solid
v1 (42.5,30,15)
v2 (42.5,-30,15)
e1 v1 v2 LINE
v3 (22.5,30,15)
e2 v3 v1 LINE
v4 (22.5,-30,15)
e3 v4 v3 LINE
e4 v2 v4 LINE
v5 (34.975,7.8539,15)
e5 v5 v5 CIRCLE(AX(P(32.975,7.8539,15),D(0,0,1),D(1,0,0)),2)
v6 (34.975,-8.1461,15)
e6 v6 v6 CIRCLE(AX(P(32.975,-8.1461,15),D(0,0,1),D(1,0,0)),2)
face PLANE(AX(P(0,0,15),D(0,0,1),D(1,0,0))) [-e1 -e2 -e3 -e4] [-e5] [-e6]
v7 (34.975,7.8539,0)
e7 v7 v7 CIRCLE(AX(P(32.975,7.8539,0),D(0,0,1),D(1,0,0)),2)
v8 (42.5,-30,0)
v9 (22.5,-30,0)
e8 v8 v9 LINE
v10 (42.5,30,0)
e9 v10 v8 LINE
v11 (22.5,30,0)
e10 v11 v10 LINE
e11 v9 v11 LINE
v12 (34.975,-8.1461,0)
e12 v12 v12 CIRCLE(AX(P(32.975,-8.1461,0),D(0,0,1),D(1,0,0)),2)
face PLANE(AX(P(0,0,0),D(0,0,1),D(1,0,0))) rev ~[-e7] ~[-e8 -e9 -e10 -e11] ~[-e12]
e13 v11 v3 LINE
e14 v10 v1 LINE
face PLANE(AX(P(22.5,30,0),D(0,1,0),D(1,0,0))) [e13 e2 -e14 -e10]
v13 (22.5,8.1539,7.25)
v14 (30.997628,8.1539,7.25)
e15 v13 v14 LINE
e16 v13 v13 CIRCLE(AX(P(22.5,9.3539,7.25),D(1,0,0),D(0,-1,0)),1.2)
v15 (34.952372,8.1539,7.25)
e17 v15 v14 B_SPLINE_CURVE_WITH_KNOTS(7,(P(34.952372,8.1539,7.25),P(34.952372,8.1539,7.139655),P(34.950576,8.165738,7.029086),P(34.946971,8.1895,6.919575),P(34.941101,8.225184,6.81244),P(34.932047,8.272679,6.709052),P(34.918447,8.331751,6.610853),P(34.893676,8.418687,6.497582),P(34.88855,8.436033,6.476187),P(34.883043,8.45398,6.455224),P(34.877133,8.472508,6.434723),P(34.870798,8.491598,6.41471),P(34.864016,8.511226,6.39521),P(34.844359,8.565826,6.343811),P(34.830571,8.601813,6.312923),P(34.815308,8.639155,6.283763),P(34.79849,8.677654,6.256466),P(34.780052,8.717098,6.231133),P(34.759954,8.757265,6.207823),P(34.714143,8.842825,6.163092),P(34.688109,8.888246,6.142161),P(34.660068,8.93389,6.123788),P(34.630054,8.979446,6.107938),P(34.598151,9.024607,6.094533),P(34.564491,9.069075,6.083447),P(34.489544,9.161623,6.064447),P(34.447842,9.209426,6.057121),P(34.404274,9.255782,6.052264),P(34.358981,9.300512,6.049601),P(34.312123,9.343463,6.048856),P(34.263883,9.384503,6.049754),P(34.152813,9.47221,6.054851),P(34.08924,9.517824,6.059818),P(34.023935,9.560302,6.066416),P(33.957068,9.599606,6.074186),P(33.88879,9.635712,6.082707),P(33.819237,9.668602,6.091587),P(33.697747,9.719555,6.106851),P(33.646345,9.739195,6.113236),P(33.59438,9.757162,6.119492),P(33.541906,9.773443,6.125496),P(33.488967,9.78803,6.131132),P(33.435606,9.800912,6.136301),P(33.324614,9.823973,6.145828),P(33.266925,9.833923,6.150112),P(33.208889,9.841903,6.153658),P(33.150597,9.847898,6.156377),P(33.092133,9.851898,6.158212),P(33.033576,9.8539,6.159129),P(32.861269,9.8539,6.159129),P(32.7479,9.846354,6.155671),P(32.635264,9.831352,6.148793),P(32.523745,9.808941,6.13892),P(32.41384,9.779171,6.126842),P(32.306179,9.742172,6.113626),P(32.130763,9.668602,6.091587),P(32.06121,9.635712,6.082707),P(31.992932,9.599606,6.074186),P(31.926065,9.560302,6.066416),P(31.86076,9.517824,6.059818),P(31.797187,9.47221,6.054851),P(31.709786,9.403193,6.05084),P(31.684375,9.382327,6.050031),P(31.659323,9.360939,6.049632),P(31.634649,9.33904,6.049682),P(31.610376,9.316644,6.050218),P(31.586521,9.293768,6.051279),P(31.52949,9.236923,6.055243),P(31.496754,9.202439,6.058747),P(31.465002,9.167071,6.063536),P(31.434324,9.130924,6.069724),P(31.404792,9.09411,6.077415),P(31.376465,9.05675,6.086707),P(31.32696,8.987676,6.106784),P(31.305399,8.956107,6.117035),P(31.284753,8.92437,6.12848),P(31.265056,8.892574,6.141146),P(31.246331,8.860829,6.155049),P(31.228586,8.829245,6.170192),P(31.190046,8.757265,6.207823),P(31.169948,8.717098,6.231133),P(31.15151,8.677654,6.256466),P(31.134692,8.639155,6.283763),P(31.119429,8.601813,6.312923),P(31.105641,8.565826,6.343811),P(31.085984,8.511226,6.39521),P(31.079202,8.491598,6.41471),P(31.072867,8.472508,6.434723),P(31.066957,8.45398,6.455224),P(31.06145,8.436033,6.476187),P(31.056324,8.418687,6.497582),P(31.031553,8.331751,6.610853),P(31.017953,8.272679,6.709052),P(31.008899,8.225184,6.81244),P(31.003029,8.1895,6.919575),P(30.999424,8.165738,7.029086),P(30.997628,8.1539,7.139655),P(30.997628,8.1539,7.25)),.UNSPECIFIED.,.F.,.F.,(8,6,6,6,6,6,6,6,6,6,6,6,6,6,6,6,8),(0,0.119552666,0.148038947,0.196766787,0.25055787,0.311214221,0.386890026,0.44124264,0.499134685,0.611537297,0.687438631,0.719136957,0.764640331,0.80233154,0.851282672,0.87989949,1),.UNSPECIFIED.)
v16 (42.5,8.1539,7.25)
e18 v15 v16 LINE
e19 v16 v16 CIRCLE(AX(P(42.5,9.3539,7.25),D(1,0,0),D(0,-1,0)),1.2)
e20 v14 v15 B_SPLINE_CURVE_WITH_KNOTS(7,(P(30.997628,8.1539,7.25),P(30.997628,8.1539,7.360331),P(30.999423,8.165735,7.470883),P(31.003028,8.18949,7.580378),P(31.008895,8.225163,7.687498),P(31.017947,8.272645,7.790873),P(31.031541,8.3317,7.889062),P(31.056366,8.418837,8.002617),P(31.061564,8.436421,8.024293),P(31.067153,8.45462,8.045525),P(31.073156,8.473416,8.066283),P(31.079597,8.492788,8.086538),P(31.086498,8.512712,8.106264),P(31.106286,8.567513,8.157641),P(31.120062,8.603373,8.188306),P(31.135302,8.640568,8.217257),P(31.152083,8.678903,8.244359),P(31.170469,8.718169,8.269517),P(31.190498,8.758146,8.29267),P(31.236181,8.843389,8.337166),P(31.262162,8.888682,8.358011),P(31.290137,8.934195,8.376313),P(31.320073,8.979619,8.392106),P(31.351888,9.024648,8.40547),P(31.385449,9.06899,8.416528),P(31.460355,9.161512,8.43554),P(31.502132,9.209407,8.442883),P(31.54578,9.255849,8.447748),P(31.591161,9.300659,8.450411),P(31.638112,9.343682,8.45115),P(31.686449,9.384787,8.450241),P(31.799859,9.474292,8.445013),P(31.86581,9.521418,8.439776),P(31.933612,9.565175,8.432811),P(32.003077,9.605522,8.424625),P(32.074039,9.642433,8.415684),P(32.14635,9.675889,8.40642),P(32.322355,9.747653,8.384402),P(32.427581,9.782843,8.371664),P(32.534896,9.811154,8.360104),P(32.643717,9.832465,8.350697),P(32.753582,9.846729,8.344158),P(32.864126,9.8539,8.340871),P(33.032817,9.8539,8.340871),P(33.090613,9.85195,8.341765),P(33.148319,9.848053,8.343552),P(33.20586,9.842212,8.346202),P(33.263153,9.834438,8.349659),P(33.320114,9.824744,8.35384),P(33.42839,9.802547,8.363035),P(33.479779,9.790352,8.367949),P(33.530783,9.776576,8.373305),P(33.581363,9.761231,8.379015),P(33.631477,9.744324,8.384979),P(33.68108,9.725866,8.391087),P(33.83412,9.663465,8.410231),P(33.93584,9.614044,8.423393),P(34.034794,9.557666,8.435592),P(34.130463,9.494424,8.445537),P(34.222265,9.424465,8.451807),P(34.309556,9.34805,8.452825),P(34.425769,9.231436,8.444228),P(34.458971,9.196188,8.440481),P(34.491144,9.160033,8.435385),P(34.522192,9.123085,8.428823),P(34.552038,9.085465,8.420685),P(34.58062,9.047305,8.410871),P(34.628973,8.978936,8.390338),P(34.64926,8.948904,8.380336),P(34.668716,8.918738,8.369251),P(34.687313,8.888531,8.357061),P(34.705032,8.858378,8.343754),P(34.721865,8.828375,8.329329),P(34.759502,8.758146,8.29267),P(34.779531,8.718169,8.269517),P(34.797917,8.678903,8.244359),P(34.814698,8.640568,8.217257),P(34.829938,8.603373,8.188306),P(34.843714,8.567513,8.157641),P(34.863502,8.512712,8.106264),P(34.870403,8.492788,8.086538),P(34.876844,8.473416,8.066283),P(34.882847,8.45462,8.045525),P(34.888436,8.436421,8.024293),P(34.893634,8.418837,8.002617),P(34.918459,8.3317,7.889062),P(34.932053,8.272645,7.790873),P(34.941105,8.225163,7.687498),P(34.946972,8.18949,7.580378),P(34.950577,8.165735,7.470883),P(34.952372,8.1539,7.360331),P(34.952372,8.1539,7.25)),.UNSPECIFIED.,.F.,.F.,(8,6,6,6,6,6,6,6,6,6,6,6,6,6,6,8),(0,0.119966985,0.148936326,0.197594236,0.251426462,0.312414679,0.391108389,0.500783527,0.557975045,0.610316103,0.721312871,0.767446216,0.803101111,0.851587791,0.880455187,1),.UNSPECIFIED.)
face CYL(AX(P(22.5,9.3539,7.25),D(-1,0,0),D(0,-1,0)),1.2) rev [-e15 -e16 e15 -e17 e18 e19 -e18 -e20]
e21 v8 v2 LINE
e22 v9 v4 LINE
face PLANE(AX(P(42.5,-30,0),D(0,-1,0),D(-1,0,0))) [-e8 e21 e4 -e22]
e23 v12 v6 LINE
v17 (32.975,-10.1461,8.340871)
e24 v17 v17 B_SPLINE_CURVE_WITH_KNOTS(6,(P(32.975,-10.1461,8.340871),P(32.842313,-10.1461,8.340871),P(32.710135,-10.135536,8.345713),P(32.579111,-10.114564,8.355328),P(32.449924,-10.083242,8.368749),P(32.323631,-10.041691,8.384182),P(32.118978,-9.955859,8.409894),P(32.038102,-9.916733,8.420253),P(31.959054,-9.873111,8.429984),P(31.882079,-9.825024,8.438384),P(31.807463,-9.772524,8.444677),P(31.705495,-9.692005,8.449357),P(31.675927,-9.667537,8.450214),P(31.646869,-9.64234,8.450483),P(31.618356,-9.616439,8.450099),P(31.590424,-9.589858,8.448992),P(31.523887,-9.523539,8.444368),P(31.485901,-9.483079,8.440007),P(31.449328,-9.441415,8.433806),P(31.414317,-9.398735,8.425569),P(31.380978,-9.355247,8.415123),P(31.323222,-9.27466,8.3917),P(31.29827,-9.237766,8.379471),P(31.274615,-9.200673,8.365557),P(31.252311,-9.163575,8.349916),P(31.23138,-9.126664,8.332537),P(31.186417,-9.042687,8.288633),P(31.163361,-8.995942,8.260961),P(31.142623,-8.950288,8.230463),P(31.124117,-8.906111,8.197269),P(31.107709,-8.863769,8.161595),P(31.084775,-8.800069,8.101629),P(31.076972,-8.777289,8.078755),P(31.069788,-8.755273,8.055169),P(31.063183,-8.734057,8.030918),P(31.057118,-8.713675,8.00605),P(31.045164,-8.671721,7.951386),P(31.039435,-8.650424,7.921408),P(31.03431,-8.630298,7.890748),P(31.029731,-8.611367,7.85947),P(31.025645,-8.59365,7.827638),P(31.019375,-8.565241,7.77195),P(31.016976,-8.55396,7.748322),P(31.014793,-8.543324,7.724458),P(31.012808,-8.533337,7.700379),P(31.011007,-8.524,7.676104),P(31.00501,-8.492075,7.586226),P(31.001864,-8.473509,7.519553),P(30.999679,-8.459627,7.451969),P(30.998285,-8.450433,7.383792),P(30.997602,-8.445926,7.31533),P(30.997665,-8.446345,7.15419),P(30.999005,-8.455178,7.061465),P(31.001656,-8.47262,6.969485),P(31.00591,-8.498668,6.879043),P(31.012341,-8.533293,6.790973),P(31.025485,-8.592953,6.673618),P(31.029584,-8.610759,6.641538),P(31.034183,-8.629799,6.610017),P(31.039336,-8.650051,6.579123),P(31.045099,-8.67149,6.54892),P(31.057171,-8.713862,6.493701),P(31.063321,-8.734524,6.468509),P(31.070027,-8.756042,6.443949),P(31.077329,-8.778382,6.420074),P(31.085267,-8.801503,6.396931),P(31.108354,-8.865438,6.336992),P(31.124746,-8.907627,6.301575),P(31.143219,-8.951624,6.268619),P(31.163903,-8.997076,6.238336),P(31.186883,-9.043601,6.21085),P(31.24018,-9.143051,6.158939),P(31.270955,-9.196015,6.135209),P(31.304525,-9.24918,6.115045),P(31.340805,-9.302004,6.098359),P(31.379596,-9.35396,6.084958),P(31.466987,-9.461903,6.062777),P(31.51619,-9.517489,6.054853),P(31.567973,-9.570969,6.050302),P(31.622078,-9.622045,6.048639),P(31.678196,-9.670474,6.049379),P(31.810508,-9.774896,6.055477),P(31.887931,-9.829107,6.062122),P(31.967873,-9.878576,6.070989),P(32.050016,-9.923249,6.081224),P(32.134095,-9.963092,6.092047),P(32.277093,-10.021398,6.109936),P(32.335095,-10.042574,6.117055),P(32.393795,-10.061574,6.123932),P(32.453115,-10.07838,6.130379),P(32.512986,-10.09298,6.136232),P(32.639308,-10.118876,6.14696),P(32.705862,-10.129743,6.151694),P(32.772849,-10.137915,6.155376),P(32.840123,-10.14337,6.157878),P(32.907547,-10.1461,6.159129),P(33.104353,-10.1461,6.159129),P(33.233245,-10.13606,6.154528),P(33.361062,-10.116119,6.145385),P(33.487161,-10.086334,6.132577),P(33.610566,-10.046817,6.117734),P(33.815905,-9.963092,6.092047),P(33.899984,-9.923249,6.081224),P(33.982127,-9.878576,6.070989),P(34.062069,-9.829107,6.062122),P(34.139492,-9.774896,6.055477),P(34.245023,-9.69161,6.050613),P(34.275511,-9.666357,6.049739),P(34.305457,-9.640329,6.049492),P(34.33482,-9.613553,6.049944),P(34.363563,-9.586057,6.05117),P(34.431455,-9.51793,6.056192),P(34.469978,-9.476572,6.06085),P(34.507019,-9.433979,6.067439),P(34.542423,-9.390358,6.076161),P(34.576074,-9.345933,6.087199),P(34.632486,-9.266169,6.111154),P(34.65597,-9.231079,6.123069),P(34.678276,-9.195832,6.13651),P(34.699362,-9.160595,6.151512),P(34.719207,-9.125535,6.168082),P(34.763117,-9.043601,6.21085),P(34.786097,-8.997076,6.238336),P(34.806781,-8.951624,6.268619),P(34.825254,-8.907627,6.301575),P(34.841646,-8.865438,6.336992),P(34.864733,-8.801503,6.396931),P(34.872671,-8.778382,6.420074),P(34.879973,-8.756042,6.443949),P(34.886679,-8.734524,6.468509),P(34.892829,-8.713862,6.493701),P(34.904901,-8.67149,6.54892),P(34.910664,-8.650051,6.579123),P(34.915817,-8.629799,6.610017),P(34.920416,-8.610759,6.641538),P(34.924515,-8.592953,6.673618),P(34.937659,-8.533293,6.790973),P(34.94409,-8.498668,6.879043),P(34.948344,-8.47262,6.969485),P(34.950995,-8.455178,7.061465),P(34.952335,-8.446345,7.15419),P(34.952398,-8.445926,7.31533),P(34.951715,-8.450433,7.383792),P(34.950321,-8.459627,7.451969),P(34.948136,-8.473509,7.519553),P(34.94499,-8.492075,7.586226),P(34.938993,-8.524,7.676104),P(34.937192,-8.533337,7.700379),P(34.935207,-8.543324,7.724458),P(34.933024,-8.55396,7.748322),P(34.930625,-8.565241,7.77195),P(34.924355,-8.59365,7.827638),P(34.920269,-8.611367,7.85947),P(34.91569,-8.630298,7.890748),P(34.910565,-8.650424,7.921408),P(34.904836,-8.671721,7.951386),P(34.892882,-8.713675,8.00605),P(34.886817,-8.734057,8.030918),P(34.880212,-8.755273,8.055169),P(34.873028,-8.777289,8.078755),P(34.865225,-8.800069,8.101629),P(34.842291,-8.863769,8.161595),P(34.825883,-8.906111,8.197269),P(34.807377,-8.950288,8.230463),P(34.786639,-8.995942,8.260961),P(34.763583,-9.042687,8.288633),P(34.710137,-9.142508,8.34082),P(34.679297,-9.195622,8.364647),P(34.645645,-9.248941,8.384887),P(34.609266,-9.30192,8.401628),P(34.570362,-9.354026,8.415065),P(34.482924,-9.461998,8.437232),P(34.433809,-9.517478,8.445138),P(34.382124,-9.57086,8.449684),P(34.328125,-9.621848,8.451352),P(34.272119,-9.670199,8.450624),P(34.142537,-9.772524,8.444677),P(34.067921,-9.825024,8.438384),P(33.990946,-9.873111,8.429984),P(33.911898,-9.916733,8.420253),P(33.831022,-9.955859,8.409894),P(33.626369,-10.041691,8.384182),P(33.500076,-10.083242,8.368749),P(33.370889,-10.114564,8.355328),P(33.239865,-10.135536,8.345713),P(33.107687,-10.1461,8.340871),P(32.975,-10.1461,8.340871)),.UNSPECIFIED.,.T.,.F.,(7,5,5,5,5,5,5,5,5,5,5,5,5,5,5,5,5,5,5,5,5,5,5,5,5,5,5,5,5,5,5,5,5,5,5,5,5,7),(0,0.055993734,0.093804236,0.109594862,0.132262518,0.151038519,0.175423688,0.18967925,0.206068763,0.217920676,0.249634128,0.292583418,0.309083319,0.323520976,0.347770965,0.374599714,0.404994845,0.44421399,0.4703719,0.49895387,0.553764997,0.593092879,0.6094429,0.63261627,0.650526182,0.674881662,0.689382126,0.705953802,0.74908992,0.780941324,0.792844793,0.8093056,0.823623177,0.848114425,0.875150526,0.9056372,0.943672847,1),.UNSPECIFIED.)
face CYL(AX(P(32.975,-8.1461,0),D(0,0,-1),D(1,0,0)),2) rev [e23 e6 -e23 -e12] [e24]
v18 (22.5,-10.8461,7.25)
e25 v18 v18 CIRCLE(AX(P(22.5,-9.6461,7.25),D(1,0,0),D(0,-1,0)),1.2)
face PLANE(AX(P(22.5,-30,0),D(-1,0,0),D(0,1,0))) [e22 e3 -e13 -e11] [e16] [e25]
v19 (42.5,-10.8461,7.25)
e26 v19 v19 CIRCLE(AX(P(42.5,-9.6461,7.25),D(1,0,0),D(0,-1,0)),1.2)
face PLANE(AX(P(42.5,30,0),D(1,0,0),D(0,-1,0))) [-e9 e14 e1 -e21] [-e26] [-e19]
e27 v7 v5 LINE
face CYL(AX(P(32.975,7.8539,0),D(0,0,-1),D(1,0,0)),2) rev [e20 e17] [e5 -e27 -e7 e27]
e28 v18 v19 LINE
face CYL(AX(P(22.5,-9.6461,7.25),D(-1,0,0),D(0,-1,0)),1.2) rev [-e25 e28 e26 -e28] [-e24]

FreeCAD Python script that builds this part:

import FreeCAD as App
import Part
import Sketcher
from FreeCAD import Vector
Q = App.Units.Quantity

doc = App.newDocument("Part")
params = doc.addObject("Spreadsheet::Sheet", "Params")
for row, (alias, value) in enumerate([
    ("sketch1_width", "20 mm"),
    ("sketch1_height", "60 mm"),
    ("sketch1_diameter", "4 mm"),
    ("pad1_length", "15 mm"),
    ("sketch2_diameter", "2.4 mm"),
    ("pocket1_length", "20 mm"),
], start=1):
    params.set(f"A{row}", alias)
    params.set(f"B{row}", "=" + value)
    params.setAlias(f"B{row}", alias)

body = doc.addObject("PartDesign::Body", "Body")

# Sketch on XY plane
sketch1 = body.newObject("Sketcher::SketchObject", "Sketch")
sketch1.AttachmentSupport = (doc.getObject("XY_Plane"), [""])
sketch1.MapMode = "FlatFace"
sketch1.addGeometry(Part.LineSegment(Vector(22.5, -30, 0), Vector(42.5, -30, 0)), False)
sketch1.addGeometry(Part.LineSegment(Vector(42.5, -30, 0), Vector(42.5, 30, 0)), False)
sketch1.addGeometry(Part.LineSegment(Vector(42.5, 30, 0), Vector(22.5, 30, 0)), False)
sketch1.addGeometry(Part.LineSegment(Vector(22.5, 30, 0), Vector(22.5, -30, 0)), False)
sketch1.addGeometry(Part.Circle(Vector(33, -8.1, 0), Vector(0, 0, 1), 2), False)
sketch1.addGeometry(Part.Circle(Vector(33, 7.9, 0), Vector(0, 0, 1), 2), False)
sketch1.addConstraint(Sketcher.Constraint("Coincident", 0, 2, 1, 1))
sketch1.addConstraint(Sketcher.Constraint("Coincident", 1, 2, 2, 1))
sketch1.addConstraint(Sketcher.Constraint("Coincident", 2, 2, 3, 1))
sketch1.addConstraint(Sketcher.Constraint("Coincident", 3, 2, 0, 1))
sketch1.addConstraint(Sketcher.Constraint("Horizontal", 0))
sketch1.addConstraint(Sketcher.Constraint("Vertical", 1))
sketch1.addConstraint(Sketcher.Constraint("Horizontal", 2))
sketch1.addConstraint(Sketcher.Constraint("Vertical", 3))
sketch1.addConstraint(Sketcher.Constraint("Equal", 4, 5))
sketch1.addConstraint(Sketcher.Constraint("Vertical", 4, 3, 5, 3))
sketch1.addConstraint(Sketcher.Constraint("DistanceX", 0, 1, 0, 2, Q("20 mm")))
sketch1.addConstraint(Sketcher.Constraint("DistanceY", 1, 1, 1, 2, Q("60 mm")))
sketch1.addConstraint(Sketcher.Constraint("Diameter", 4, Q("4 mm")))
sketch1.addConstraint(Sketcher.Constraint("DistanceY", 0, 2, -1, 1, Q("30 mm")))
sketch1.addConstraint(Sketcher.Constraint("DistanceY", 4, 3, 5, 3, Q("16 mm")))
sketch1.addConstraint(Sketcher.Constraint("DistanceX", -1, 1, 0, 2, Q("42.5 mm")))
sketch1.addConstraint(Sketcher.Constraint("DistanceX", -1, 1, 4, 3, Q("32.975 mm")))
sketch1.addConstraint(Sketcher.Constraint("DistanceY", 4, 3, -1, 1, Q("8.146 mm")))
sketch1.setExpression("Constraints[10]", "Params.sketch1_width")
sketch1.setExpression("Constraints[11]", "Params.sketch1_height")
sketch1.setExpression("Constraints[12]", "Params.sketch1_diameter")
pad1 = body.newObject("PartDesign::Pad", "Pad")
pad1.Profile = sketch1
pad1.setExpression("Length", "Params.pad1_length")

# Sketch on YZ plane
sketch2 = body.newObject("Sketcher::SketchObject", "Sketch001")
sketch2.AttachmentSupport = (doc.getObject("YZ_Plane"), [""])
sketch2.MapMode = "FlatFace"
sketch2.AttachmentOffset = App.Placement(Vector(0, 0, 22.5), App.Rotation())
sketch2.addGeometry(Part.Circle(Vector(9.4, 7.2, 0), Vector(0, 0, 1), 1.2), False)
sketch2.addGeometry(Part.Circle(Vector(-9.6, 7.2, 0), Vector(0, 0, 1), 1.2), False)
sketch2.addConstraint(Sketcher.Constraint("Equal", 0, 1))
sketch2.addConstraint(Sketcher.Constraint("Horizontal", 0, 3, 1, 3))
sketch2.addConstraint(Sketcher.Constraint("Diameter", 0, Q("2.4 mm")))
sketch2.addConstraint(Sketcher.Constraint("DistanceX", 1, 3, 0, 3, Q("19 mm")))
sketch2.addConstraint(Sketcher.Constraint("DistanceY", -1, 1, 0, 3, Q("7.25 mm")))
sketch2.addConstraint(Sketcher.Constraint("DistanceX", -1, 1, 0, 3, Q("9.354 mm")))
sketch2.setExpression("Constraints[2]", "Params.sketch2_diameter")
pocket1 = body.newObject("PartDesign::Pocket", "Pocket")
pocket1.Profile = sketch2
pocket1.setExpression("Length", "Params.pocket1_length")
pocket1.Reversed = True

doc.recompute()
